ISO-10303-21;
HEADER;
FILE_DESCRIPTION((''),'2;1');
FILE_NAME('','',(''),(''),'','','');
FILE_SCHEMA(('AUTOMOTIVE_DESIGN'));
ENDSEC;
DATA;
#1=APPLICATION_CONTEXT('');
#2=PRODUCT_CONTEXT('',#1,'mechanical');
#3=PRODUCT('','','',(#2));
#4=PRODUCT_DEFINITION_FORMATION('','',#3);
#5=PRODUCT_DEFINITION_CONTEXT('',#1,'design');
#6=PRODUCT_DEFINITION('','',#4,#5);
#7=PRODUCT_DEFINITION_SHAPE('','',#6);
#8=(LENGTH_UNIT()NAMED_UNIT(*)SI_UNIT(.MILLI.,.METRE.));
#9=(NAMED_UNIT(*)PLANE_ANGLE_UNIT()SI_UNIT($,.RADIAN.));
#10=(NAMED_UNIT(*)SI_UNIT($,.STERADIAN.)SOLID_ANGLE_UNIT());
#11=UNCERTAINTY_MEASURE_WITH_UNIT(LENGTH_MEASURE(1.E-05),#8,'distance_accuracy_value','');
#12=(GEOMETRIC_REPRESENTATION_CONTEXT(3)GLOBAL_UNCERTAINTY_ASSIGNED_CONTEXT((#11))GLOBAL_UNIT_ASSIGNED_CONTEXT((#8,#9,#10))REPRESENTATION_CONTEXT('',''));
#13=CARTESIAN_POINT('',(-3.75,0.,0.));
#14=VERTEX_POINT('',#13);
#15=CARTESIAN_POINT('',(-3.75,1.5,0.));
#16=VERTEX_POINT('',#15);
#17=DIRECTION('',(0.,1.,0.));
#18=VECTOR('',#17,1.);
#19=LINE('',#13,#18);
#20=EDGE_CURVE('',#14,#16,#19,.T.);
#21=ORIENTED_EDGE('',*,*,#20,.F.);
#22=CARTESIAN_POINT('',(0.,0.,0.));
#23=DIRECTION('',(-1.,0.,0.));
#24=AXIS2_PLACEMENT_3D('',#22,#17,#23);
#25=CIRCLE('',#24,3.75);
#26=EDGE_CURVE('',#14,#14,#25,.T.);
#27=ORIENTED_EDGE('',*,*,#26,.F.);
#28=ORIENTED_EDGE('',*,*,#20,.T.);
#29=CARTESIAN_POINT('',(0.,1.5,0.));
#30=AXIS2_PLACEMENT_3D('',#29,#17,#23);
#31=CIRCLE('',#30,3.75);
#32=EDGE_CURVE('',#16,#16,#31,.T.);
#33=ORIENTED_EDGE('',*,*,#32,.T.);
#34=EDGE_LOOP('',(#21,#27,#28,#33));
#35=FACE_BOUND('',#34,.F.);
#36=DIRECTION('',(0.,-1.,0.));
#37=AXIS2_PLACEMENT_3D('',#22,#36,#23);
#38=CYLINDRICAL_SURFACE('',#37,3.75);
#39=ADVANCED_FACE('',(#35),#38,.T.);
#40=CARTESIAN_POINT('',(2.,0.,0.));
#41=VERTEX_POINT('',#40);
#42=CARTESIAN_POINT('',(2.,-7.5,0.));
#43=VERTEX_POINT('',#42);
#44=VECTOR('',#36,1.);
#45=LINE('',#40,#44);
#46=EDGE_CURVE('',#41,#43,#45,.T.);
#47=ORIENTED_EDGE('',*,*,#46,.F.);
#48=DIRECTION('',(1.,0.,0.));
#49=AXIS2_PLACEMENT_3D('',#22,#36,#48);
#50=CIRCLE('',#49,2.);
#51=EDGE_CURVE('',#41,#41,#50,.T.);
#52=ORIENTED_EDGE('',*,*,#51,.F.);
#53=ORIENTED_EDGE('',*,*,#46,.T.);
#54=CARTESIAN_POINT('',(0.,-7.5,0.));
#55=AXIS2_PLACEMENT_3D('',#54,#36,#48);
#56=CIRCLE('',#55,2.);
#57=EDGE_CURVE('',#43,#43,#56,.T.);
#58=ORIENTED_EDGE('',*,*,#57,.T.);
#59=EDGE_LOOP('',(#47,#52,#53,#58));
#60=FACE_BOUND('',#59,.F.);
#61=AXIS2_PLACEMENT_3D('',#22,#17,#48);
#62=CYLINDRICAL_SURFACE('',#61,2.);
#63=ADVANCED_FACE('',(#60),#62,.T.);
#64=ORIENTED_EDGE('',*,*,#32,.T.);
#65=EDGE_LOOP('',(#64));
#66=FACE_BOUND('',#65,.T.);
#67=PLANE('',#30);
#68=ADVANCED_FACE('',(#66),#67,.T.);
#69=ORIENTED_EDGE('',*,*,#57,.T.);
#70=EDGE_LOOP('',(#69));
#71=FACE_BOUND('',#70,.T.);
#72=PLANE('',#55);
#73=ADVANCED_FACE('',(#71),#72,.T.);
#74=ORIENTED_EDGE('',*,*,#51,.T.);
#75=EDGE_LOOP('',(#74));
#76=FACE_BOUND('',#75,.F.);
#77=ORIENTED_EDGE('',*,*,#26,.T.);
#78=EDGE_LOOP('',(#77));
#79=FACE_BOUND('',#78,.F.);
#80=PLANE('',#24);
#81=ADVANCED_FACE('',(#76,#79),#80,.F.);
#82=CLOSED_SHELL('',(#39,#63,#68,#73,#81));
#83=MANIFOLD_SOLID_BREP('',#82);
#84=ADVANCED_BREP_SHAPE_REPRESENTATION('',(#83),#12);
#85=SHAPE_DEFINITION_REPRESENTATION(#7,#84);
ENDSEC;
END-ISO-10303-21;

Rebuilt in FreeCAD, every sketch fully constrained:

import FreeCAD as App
import Part
import Sketcher

V = App.Vector

doc = App.newDocument("Part")
body = doc.addObject("PartDesign::Body", "Body")

sketch1 = body.newObject("Sketcher::SketchObject", "Sketch")
sketch1.AttachmentSupport = (doc.getObject("XZ_Plane"), [""])
sketch1.MapMode = "FlatFace"
sketch1.addGeometry(Part.Circle(V(0, 0, 0), V(0, 0, 1), 3.75), False)
sketch1.addConstraint([
    Sketcher.Constraint("Coincident", 0, 3, -1, 1),
    Sketcher.Constraint("Diameter", 0, 7.5),
])
pad1 = body.newObject("PartDesign::Pad", "Pad")
pad1.Profile = sketch1
pad1.Length = 1.5
pad1.Reversed = True

sketch2 = body.newObject("Sketcher::SketchObject", "Sketch001")
sketch2.AttachmentSupport = (doc.getObject("XZ_Plane"), [""])
sketch2.MapMode = "FlatFace"
sketch2.addGeometry(Part.Circle(V(0, 0, 0), V(0, 0, 1), 2), False)
sketch2.addConstraint([
    Sketcher.Constraint("Coincident", 0, 3, -1, 1),
    Sketcher.Constraint("Diameter", 0, 4.0),
])
pad2 = body.newObject("PartDesign::Pad", "Pad001")
pad2.Profile = sketch2
pad2.Length = 7.5

doc.recompute()
